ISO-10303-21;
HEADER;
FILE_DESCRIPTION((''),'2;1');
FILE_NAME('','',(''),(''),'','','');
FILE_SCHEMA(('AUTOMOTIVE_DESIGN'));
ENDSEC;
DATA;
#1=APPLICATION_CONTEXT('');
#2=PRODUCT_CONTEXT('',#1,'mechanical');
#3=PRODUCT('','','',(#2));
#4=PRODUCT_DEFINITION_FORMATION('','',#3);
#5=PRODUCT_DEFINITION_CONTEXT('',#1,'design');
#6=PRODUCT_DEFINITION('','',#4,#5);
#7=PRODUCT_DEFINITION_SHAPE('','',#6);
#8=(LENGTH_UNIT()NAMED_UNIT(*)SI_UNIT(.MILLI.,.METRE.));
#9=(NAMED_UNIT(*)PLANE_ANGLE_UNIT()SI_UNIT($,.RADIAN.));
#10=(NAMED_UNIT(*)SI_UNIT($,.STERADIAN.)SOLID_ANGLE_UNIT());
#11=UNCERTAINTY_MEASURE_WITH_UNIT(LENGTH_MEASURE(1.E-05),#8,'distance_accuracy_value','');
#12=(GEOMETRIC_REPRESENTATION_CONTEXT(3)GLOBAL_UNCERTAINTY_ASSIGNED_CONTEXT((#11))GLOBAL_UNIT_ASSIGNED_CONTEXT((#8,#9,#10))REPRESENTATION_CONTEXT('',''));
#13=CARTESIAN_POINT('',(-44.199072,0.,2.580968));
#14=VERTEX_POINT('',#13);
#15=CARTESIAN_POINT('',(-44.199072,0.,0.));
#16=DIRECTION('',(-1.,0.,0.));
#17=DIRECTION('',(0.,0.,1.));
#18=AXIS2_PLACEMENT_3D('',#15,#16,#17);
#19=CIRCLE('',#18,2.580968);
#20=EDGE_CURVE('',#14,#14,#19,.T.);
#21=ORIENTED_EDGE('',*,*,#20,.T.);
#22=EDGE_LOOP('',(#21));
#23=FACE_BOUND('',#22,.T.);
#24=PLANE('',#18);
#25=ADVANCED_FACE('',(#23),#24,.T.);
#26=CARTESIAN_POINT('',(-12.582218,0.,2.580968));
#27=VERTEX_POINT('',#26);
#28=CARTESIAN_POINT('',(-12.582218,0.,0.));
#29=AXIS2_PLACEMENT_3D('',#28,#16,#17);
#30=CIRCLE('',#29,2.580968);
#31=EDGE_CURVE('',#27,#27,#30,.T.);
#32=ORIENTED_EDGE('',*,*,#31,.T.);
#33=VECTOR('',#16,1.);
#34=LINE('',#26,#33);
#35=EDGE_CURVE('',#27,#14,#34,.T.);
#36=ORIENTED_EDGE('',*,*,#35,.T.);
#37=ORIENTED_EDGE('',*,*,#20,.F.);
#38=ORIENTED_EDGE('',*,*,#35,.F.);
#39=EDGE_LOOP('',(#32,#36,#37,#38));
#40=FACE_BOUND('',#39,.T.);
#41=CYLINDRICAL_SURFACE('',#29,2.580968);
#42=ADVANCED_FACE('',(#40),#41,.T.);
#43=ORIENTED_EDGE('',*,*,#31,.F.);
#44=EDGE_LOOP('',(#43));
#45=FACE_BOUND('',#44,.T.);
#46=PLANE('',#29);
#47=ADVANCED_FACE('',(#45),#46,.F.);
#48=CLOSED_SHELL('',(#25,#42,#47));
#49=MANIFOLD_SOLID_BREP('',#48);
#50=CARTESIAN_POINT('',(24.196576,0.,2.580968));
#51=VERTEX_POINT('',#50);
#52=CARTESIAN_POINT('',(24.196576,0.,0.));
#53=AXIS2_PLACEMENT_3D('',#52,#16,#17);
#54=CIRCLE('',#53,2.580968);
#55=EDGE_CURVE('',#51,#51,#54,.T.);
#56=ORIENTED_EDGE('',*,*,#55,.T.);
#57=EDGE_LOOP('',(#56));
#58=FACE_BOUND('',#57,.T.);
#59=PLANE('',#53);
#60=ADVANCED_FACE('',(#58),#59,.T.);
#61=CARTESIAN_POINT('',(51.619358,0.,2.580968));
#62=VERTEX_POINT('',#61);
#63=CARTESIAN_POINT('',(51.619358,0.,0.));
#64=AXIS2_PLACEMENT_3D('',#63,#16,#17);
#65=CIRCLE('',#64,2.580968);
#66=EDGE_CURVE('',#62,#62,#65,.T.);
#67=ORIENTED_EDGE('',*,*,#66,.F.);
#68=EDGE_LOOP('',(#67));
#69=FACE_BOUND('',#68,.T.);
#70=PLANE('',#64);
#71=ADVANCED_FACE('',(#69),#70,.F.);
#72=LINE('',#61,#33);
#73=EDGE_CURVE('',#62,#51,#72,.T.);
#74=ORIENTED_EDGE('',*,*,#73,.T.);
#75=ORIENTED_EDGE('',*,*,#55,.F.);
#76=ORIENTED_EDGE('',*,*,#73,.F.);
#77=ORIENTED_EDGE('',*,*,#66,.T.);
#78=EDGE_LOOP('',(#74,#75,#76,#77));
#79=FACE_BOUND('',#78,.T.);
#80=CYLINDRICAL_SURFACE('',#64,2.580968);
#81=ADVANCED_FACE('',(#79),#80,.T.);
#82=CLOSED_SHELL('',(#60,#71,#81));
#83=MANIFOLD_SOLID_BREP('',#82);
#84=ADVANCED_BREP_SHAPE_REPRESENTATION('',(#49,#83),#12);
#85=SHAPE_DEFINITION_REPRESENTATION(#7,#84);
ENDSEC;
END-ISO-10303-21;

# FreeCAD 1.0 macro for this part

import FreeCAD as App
import Part
import Sketcher

V = App.Vector

doc = App.newDocument("Part")
body = doc.addObject("PartDesign::Body", "Body")
body.AllowCompound = True

sketch1 = body.newObject("Sketcher::SketchObject", "Sketch")
sketch1.AttachmentSupport = (doc.getObject("XZ_Plane"), [""])
sketch1.MapMode = "FlatFace"
sketch1.addGeometry([
    Part.LineSegment(V(-12.6, 0, 0), V(-12.6, 2.6, 0)),
    Part.LineSegment(V(-12.6, 2.6, 0), V(-44.2, 2.6, 0)),
    Part.LineSegment(V(-44.2, 2.6, 0), V(-44.2, 0, 0)),
    Part.LineSegment(V(-44.2, 0, 0), V(-12.6, 0, 0)),
    Part.LineSegment(V(24.2, 2.6, 0), V(24.2, 0, 0)),
    Part.LineSegment(V(24.2, 0, 0), V(51.6, 0, 0)),
    Part.LineSegment(V(51.6, 0, 0), V(51.6, 2.6, 0)),
    Part.LineSegment(V(51.6, 2.6, 0), V(24.2, 2.6, 0)),
], False)
sketch1.addConstraint([
    Sketcher.Constraint("Coincident", 0, 2, 1, 1),
    Sketcher.Constraint("Coincident", 1, 2, 2, 1),
    Sketcher.Constraint("Coincident", 2, 2, 3, 1),
    Sketcher.Constraint("Coincident", 3, 2, 0, 1),
    Sketcher.Constraint("Coincident", 4, 2, 5, 1),
    Sketcher.Constraint("Coincident", 5, 2, 6, 1),
    Sketcher.Constraint("Coincident", 6, 2, 7, 1),
    Sketcher.Constraint("Coincident", 7, 2, 4, 1),
    Sketcher.Constraint("Vertical", 0),
    Sketcher.Constraint("Horizontal", 1),
    Sketcher.Constraint("Vertical", 2),
    Sketcher.Constraint("Horizontal", 3),
    Sketcher.Constraint("Vertical", 4),
    Sketcher.Constraint("Horizontal", 5),
    Sketcher.Constraint("Vertical", 6),
    Sketcher.Constraint("Horizontal", 7),
    Sketcher.Constraint("PointOnObject", 2, 2, -1),
    Sketcher.Constraint("PointOnObject", 4, 2, -1),
    Sketcher.Constraint("Horizontal", 1, 2, 6, 2),
    Sketcher.Constraint("DistanceX", 5, 1, 5, 2, 27.422782),
    Sketcher.Constraint("DistanceX", 1, 2, 1, 1, 31.616854),
    Sketcher.Constraint("DistanceY", 0, 1, 0, 2, 2.580968),
    Sketcher.Constraint("DistanceX", 2, 2, 5, 2, 95.81843),
    Sketcher.Constraint("DistanceX", 0, 2, -1, 1, 12.582218),
])
revolution = body.newObject("PartDesign::Revolution", "Revolution")
revolution.Profile = sketch1
revolution.ReferenceAxis = (sketch1, ["H_Axis"])
revolution.Angle = 360

doc.recompute()
